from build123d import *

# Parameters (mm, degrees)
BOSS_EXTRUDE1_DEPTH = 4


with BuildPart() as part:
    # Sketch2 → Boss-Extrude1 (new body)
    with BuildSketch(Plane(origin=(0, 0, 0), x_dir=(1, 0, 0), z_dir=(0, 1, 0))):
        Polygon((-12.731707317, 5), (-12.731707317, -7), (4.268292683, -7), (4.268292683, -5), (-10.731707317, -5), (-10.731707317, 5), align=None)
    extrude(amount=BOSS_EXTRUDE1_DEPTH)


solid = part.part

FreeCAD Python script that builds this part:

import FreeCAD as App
import Part
import Sketcher

V = App.Vector

doc = App.newDocument("Part")
body = doc.addObject("PartDesign::Body", "Body")

# Sketch on XZ plane
sketch1 = doc.addObject("Sketcher::SketchObject", "Sketch")
body.addObject(sketch1)
sketch1.AttachmentSupport = (doc.XZ_Plane, [""])
sketch1.MapMode = "FlatFace"
sketch1.addGeometry([
    Part.LineSegment(V(-12.731707, -5, 0), V(-12.731707, 7, 0)),  # 0
    Part.LineSegment(V(-12.731707, 7, 0), V(4.268293, 7, 0)),  # 1
    Part.LineSegment(V(4.268293, 7, 0), V(4.268293, 5, 0)),  # 2
    Part.LineSegment(V(4.268293, 5, 0), V(-10.731707, 5, 0)),  # 3
    Part.LineSegment(V(-10.731707, 5, 0), V(-10.731707, -5, 0)),  # 4
    Part.LineSegment(V(-10.731707, -5, 0), V(-12.731707, -5, 0)),  # 5
], False)
sketch1.addConstraint([
    Sketcher.Constraint("Coincident", 0, 2, 1, 1),
    Sketcher.Constraint("Coincident", 1, 2, 2, 1),
    Sketcher.Constraint("Coincident", 2, 2, 3, 1),
    Sketcher.Constraint("Coincident", 3, 2, 4, 1),
    Sketcher.Constraint("Coincident", 4, 2, 5, 1),
    Sketcher.Constraint("Coincident", 5, 2, 0, 1),
    Sketcher.Constraint("Vertical", 0),
    Sketcher.Constraint("Horizontal", 1),
    Sketcher.Constraint("Vertical", 2),
    Sketcher.Constraint("Horizontal", 3),
    Sketcher.Constraint("Vertical", 4),
    Sketcher.Constraint("Horizontal", 5),
    Sketcher.Constraint("Equal", 5, 2),
    Sketcher.Constraint("DistanceX", 1, 1, 1, 2, 17.0),
    Sketcher.Constraint("DistanceX", 3, 2, 3, 1, 15.0),
    Sketcher.Constraint("DistanceY", 0, 1, 0, 2, 12.0),
    Sketcher.Constraint("DistanceY", -1, 1, 0, 2, 7.0),
    Sketcher.Constraint("DistanceX", 0, 2, -1, 1, 12.731707),
])
pad1 = doc.addObject("PartDesign::Pad", "Pad")
body.addObject(pad1)
pad1.Profile = sketch1
pad1.Length = 4
pad1.Reversed = True

doc.recompute()
